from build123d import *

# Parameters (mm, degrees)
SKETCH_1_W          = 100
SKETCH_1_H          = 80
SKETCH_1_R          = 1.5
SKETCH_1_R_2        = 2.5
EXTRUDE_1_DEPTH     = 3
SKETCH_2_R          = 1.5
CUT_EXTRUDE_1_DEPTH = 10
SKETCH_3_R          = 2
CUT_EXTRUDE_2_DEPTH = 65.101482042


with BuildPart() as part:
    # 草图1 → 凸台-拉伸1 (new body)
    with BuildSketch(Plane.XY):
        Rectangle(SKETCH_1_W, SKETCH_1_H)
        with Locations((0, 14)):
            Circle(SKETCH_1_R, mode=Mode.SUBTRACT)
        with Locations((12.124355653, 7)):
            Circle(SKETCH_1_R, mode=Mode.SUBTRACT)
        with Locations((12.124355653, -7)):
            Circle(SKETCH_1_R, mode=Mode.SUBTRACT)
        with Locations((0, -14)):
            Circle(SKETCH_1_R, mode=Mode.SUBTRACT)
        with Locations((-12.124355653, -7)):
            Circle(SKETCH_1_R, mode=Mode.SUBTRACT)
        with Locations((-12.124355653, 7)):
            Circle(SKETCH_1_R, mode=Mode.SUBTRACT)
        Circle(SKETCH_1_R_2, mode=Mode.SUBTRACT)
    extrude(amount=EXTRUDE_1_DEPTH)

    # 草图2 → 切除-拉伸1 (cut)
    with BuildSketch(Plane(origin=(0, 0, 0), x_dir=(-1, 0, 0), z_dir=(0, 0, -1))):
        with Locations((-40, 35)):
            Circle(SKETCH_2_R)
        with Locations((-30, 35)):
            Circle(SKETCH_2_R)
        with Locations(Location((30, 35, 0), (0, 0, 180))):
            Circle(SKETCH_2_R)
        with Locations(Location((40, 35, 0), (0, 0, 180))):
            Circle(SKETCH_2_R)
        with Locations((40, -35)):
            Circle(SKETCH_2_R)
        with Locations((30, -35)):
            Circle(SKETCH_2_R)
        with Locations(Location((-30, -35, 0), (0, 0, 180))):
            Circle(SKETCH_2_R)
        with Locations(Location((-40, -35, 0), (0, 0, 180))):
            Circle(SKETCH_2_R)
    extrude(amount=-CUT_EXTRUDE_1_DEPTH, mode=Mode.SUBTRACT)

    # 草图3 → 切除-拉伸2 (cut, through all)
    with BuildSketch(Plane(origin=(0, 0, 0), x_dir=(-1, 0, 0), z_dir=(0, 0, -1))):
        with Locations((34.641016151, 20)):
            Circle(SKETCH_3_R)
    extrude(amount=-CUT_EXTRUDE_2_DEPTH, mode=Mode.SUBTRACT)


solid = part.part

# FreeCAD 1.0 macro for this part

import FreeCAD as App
import Part
import Sketcher

V = App.Vector
Q = App.Units.Quantity


def add_polygon(sketch, points):
    """Adds a closed chain of lines whose ends are joined by coincident constraints."""
    first, n = sketch.GeometryCount, len(points)
    for a, b in zip(points, points[1:] + points[:1]):
        sketch.addGeometry(Part.LineSegment(App.Vector(*a, 0), App.Vector(*b, 0)), False)
    for i in range(n):
        sketch.addConstraint(Sketcher.Constraint("Coincident", first + i, 2, first + (i + 1) % n, 1))

doc = App.newDocument("Part")
body = doc.addObject("PartDesign::Body", "Body")

sketch1 = body.newObject("Sketcher::SketchObject", "Sketch")
sketch1.AttachmentSupport = (doc.getObject("XY_Plane"), [""])
sketch1.MapMode = "FlatFace"
add_polygon(sketch1, [(-50, 40), (-50, -40), (50, -40), (50, 40)])
sketch1.addGeometry(Part.Circle(V(-12.1, -7, 0), V(0, 0, 1), 1.5), False)
sketch1.addGeometry(Part.Circle(V(0, -14, 0), V(0, 0, 1), 1.5), False)
sketch1.addGeometry(Part.Circle(V(12.1, -7, 0), V(0, 0, 1), 1.5), False)
sketch1.addGeometry(Part.Circle(V(-12.1, 7, 0), V(0, 0, 1), 1.5), False)
sketch1.addGeometry(Part.Circle(V(0, 0, 0), V(0, 0, 1), 2.5), False)
sketch1.addGeometry(Part.Circle(V(12.1, 7, 0), V(0, 0, 1), 1.5), False)
sketch1.addGeometry(Part.Circle(V(0, 14, 0), V(0, 0, 1), 1.5), False)
sketch1.addConstraint([
    Sketcher.Constraint("Vertical", 0),
    Sketcher.Constraint("Horizontal", 1),
    Sketcher.Constraint("Vertical", 2),
    Sketcher.Constraint("Horizontal", 3),
    Sketcher.Constraint("Coincident", 8, 3, -1, 1),
    Sketcher.Constraint("Equal", 4, 5),
    Sketcher.Constraint("Equal", 5, 6),
    Sketcher.Constraint("Equal", 6, 7),
    Sketcher.Constraint("Equal", 7, 9),
    Sketcher.Constraint("Equal", 9, 10),
    Sketcher.Constraint("Symmetric", 6, 3, 7, 3, -1, 1),
    Sketcher.Constraint("Symmetric", 4, 3, 9, 3, -1, 1),
    Sketcher.Constraint("Symmetric", 5, 3, 10, 3, -1, 1),
    Sketcher.Constraint("Symmetric", 0, 2, 2, 2, -1, 1),
    Sketcher.Constraint("Symmetric", 4, 3, 6, 3, -2),
    Sketcher.Constraint("PointOnObject", 5, 3, -2),
    Sketcher.Constraint("Diameter", 4, Q("3 mm")),
    Sketcher.Constraint("Diameter", 8, Q("5 mm")),
    Sketcher.Constraint("DistanceX", 1, 1, 1, 2, Q("100 mm")),
    Sketcher.Constraint("DistanceY", 0, 2, 0, 1, Q("80 mm")),
    Sketcher.Constraint("DistanceY", 4, 3, -1, 1, Q("7 mm")),
    Sketcher.Constraint("DistanceY", 5, 3, -1, 1, Q("14 mm")),
    Sketcher.Constraint("DistanceX", 4, 3, 6, 3, Q("24.248711 mm")),
])
pad1 = body.newObject("PartDesign::Pad", "Pad")
pad1.Profile = sketch1
pad1.Length = 3

sketch2 = body.newObject("Sketcher::SketchObject", "Sketch001")
sketch2.AttachmentSupport = (doc.getObject("XY_Plane"), [""])
sketch2.MapMode = "FlatFace"
sketch2.addGeometry([
    Part.Circle(V(40, 35, 0), V(0, 0, 1), 1.5),
    Part.Circle(V(30, 35, 0), V(0, 0, 1), 1.5),
    Part.Circle(V(-30, 35, 0), V(0, 0, 1), 1.5),
    Part.Circle(V(-40, 35, 0), V(0, 0, 1), 1.5),
    Part.Circle(V(-40, -35, 0), V(0, 0, 1), 1.5),
    Part.Circle(V(-30, -35, 0), V(0, 0, 1), 1.5),
    Part.Circle(V(30, -35, 0), V(0, 0, 1), 1.5),
    Part.Circle(V(40, -35, 0), V(0, 0, 1), 1.5),
], False)
sketch2.addConstraint([
    Sketcher.Constraint("Equal", 0, 1),
    Sketcher.Constraint("Equal", 1, 2),
    Sketcher.Constraint("Equal", 2, 3),
    Sketcher.Constraint("Equal", 3, 4),
    Sketcher.Constraint("Equal", 4, 5),
    Sketcher.Constraint("Equal", 5, 6),
    Sketcher.Constraint("Equal", 6, 7),
    Sketcher.Constraint("Symmetric", 0, 3, 4, 3, -1, 1),
    Sketcher.Constraint("Symmetric", 1, 3, 5, 3, -1, 1),
    Sketcher.Constraint("Symmetric", 2, 3, 6, 3, -1, 1),
    Sketcher.Constraint("Symmetric", 3, 3, 7, 3, -1, 1),
    Sketcher.Constraint("Symmetric", 1, 3, 2, 3, -2),
    Sketcher.Constraint("Symmetric", 0, 3, 3, 3, -2),
    Sketcher.Constraint("Horizontal", 0, 3, 1, 3),
    Sketcher.Constraint("Diameter", 0, Q("3 mm")),
    Sketcher.Constraint("DistanceX", -1, 1, 0, 3, Q("40 mm")),
    Sketcher.Constraint("DistanceY", -1, 1, 0, 3, Q("35 mm")),
    Sketcher.Constraint("DistanceX", -1, 1, 1, 3, Q("30 mm")),
])
pocket1 = body.newObject("PartDesign::Pocket", "Pocket")
pocket1.Profile = sketch2
pocket1.Length = 10
pocket1.Reversed = True

sketch3 = body.newObject("Sketcher::SketchObject", "Sketch002")
sketch3.AttachmentSupport = (doc.getObject("XY_Plane"), [""])
sketch3.MapMode = "FlatFace"
sketch3.addGeometry(Part.Circle(V(-34.6, 20, 0), V(0, 0, 1), 2), False)
sketch3.addConstraint([
    Sketcher.Constraint("Diameter", 0, Q("4 mm")),
    Sketcher.Constraint("DistanceY", -1, 1, 0, 3, Q("20 mm")),
    Sketcher.Constraint("DistanceX", 0, 3, -1, 1, Q("34.641016 mm")),
])
pocket2 = body.newObject("PartDesign::Pocket", "Pocket001")
pocket2.Profile = sketch3
pocket2.Type = "ThroughAll"
pocket2.Reversed = True

doc.recompute()
